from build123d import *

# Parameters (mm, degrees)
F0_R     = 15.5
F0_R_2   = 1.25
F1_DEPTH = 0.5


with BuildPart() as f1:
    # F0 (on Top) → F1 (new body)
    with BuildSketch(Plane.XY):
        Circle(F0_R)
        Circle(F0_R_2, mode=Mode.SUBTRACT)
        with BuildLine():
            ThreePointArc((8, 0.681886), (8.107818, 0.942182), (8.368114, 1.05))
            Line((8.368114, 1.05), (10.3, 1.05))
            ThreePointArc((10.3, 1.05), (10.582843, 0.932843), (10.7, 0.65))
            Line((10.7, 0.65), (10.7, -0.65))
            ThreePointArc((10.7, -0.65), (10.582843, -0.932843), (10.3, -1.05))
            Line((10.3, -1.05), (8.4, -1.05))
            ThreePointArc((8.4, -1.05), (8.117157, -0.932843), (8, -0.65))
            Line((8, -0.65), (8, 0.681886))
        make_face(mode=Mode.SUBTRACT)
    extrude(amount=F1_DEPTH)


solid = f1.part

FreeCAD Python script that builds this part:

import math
import FreeCAD as App
import Part
import Sketcher

V = App.Vector

doc = App.newDocument("Part")
body = doc.addObject("PartDesign::Body", "Body")

# Sketch on XY plane
sketch1 = doc.addObject("Sketcher::SketchObject", "Sketch")
body.addObject(sketch1)
sketch1.AttachmentSupport = (doc.XY_Plane, [""])
sketch1.MapMode = "FlatFace"
sketch1.addGeometry([
    Part.Circle(V(0, 0, 0), V(0, 0, 1), 15.5),  # 0
    Part.Circle(V(0, 0, 0), V(0, 0, 1), 1.25),  # 1
    Part.LineSegment(V(8, -0.65, 0), V(8, 0.68, 0)),  # 2
    Part.ArcOfCircle(Part.Circle(V(8.37, 0.68, 0), V(0, 0, 1), 0.37), math.radians(90), math.radians(180)),  # 3
    Part.LineSegment(V(8.37, 1.05, 0), V(10.3, 1.05, 0)),  # 4
    Part.ArcOfCircle(Part.Circle(V(10.3, 0.65, 0), V(0, 0, 1), 0.4), math.radians(0), math.radians(90)),  # 5
    Part.LineSegment(V(10.7, 0.65, 0), V(10.7, -0.65, 0)),  # 6
    Part.ArcOfCircle(Part.Circle(V(10.3, -0.65, 0), V(0, 0, 1), 0.4), math.radians(-90), math.radians(0)),  # 7
    Part.LineSegment(V(10.3, -1.05, 0), V(8.4, -1.05, 0)),  # 8
    Part.ArcOfCircle(Part.Circle(V(8.4, -0.65, 0), V(0, 0, 1), 0.4), math.radians(180), math.radians(270)),  # 9
], False)
sketch1.addConstraint([
    Sketcher.Constraint("Tangent", 2, 2, 3, 2),
    Sketcher.Constraint("Tangent", 3, 1, 4, 1),
    Sketcher.Constraint("Coincident", 4, 2, 5, 2),
    Sketcher.Constraint("Coincident", 5, 1, 6, 1),
    Sketcher.Constraint("Coincident", 6, 2, 7, 2),
    Sketcher.Constraint("Coincident", 7, 1, 8, 1),
    Sketcher.Constraint("Coincident", 8, 2, 9, 2),
    Sketcher.Constraint("Coincident", 9, 1, 2, 1),
    Sketcher.Constraint("Vertical", 2),
    Sketcher.Constraint("Horizontal", 4),
    Sketcher.Constraint("Vertical", 6),
    Sketcher.Constraint("Horizontal", 8),
    Sketcher.Constraint("Coincident", 0, 3, -1, 1),
    Sketcher.Constraint("Coincident", 1, 3, -1, 1),
    Sketcher.Constraint("Equal", 5, 7),
    Sketcher.Constraint("Equal", 7, 9),
    Sketcher.Constraint("Symmetric", 4, 2, 7, 1, -1),
    Sketcher.Constraint("Horizontal", 9, 3, 6, 2),
    Sketcher.Constraint("Horizontal", 6, 2, 9, 1),
    Sketcher.Constraint("Vertical", 7, 3, 4, 2),
    Sketcher.Constraint("Vertical", 9, 3, 8, 2),
    Sketcher.Constraint("Diameter", 0, 31.0),
    Sketcher.Constraint("Diameter", 1, 2.5),
    Sketcher.Constraint("Radius", 5, 0.399999),
    Sketcher.Constraint("DistanceX", 8, 2, 8, 1, 1.9),
    Sketcher.Constraint("DistanceY", 6, 2, 6, 1, 1.3),
    Sketcher.Constraint("DistanceX", -1, 1, 2, 2, 8.0),
    Sketcher.Constraint("DistanceY", 7, 3, 5, 3, 1.300002),
    Sketcher.Constraint("Radius", 3, 0.368114),
])
pad1 = doc.addObject("PartDesign::Pad", "Pad")
body.addObject(pad1)
pad1.Profile = sketch1
pad1.Length = 0.5

doc.recompute()
